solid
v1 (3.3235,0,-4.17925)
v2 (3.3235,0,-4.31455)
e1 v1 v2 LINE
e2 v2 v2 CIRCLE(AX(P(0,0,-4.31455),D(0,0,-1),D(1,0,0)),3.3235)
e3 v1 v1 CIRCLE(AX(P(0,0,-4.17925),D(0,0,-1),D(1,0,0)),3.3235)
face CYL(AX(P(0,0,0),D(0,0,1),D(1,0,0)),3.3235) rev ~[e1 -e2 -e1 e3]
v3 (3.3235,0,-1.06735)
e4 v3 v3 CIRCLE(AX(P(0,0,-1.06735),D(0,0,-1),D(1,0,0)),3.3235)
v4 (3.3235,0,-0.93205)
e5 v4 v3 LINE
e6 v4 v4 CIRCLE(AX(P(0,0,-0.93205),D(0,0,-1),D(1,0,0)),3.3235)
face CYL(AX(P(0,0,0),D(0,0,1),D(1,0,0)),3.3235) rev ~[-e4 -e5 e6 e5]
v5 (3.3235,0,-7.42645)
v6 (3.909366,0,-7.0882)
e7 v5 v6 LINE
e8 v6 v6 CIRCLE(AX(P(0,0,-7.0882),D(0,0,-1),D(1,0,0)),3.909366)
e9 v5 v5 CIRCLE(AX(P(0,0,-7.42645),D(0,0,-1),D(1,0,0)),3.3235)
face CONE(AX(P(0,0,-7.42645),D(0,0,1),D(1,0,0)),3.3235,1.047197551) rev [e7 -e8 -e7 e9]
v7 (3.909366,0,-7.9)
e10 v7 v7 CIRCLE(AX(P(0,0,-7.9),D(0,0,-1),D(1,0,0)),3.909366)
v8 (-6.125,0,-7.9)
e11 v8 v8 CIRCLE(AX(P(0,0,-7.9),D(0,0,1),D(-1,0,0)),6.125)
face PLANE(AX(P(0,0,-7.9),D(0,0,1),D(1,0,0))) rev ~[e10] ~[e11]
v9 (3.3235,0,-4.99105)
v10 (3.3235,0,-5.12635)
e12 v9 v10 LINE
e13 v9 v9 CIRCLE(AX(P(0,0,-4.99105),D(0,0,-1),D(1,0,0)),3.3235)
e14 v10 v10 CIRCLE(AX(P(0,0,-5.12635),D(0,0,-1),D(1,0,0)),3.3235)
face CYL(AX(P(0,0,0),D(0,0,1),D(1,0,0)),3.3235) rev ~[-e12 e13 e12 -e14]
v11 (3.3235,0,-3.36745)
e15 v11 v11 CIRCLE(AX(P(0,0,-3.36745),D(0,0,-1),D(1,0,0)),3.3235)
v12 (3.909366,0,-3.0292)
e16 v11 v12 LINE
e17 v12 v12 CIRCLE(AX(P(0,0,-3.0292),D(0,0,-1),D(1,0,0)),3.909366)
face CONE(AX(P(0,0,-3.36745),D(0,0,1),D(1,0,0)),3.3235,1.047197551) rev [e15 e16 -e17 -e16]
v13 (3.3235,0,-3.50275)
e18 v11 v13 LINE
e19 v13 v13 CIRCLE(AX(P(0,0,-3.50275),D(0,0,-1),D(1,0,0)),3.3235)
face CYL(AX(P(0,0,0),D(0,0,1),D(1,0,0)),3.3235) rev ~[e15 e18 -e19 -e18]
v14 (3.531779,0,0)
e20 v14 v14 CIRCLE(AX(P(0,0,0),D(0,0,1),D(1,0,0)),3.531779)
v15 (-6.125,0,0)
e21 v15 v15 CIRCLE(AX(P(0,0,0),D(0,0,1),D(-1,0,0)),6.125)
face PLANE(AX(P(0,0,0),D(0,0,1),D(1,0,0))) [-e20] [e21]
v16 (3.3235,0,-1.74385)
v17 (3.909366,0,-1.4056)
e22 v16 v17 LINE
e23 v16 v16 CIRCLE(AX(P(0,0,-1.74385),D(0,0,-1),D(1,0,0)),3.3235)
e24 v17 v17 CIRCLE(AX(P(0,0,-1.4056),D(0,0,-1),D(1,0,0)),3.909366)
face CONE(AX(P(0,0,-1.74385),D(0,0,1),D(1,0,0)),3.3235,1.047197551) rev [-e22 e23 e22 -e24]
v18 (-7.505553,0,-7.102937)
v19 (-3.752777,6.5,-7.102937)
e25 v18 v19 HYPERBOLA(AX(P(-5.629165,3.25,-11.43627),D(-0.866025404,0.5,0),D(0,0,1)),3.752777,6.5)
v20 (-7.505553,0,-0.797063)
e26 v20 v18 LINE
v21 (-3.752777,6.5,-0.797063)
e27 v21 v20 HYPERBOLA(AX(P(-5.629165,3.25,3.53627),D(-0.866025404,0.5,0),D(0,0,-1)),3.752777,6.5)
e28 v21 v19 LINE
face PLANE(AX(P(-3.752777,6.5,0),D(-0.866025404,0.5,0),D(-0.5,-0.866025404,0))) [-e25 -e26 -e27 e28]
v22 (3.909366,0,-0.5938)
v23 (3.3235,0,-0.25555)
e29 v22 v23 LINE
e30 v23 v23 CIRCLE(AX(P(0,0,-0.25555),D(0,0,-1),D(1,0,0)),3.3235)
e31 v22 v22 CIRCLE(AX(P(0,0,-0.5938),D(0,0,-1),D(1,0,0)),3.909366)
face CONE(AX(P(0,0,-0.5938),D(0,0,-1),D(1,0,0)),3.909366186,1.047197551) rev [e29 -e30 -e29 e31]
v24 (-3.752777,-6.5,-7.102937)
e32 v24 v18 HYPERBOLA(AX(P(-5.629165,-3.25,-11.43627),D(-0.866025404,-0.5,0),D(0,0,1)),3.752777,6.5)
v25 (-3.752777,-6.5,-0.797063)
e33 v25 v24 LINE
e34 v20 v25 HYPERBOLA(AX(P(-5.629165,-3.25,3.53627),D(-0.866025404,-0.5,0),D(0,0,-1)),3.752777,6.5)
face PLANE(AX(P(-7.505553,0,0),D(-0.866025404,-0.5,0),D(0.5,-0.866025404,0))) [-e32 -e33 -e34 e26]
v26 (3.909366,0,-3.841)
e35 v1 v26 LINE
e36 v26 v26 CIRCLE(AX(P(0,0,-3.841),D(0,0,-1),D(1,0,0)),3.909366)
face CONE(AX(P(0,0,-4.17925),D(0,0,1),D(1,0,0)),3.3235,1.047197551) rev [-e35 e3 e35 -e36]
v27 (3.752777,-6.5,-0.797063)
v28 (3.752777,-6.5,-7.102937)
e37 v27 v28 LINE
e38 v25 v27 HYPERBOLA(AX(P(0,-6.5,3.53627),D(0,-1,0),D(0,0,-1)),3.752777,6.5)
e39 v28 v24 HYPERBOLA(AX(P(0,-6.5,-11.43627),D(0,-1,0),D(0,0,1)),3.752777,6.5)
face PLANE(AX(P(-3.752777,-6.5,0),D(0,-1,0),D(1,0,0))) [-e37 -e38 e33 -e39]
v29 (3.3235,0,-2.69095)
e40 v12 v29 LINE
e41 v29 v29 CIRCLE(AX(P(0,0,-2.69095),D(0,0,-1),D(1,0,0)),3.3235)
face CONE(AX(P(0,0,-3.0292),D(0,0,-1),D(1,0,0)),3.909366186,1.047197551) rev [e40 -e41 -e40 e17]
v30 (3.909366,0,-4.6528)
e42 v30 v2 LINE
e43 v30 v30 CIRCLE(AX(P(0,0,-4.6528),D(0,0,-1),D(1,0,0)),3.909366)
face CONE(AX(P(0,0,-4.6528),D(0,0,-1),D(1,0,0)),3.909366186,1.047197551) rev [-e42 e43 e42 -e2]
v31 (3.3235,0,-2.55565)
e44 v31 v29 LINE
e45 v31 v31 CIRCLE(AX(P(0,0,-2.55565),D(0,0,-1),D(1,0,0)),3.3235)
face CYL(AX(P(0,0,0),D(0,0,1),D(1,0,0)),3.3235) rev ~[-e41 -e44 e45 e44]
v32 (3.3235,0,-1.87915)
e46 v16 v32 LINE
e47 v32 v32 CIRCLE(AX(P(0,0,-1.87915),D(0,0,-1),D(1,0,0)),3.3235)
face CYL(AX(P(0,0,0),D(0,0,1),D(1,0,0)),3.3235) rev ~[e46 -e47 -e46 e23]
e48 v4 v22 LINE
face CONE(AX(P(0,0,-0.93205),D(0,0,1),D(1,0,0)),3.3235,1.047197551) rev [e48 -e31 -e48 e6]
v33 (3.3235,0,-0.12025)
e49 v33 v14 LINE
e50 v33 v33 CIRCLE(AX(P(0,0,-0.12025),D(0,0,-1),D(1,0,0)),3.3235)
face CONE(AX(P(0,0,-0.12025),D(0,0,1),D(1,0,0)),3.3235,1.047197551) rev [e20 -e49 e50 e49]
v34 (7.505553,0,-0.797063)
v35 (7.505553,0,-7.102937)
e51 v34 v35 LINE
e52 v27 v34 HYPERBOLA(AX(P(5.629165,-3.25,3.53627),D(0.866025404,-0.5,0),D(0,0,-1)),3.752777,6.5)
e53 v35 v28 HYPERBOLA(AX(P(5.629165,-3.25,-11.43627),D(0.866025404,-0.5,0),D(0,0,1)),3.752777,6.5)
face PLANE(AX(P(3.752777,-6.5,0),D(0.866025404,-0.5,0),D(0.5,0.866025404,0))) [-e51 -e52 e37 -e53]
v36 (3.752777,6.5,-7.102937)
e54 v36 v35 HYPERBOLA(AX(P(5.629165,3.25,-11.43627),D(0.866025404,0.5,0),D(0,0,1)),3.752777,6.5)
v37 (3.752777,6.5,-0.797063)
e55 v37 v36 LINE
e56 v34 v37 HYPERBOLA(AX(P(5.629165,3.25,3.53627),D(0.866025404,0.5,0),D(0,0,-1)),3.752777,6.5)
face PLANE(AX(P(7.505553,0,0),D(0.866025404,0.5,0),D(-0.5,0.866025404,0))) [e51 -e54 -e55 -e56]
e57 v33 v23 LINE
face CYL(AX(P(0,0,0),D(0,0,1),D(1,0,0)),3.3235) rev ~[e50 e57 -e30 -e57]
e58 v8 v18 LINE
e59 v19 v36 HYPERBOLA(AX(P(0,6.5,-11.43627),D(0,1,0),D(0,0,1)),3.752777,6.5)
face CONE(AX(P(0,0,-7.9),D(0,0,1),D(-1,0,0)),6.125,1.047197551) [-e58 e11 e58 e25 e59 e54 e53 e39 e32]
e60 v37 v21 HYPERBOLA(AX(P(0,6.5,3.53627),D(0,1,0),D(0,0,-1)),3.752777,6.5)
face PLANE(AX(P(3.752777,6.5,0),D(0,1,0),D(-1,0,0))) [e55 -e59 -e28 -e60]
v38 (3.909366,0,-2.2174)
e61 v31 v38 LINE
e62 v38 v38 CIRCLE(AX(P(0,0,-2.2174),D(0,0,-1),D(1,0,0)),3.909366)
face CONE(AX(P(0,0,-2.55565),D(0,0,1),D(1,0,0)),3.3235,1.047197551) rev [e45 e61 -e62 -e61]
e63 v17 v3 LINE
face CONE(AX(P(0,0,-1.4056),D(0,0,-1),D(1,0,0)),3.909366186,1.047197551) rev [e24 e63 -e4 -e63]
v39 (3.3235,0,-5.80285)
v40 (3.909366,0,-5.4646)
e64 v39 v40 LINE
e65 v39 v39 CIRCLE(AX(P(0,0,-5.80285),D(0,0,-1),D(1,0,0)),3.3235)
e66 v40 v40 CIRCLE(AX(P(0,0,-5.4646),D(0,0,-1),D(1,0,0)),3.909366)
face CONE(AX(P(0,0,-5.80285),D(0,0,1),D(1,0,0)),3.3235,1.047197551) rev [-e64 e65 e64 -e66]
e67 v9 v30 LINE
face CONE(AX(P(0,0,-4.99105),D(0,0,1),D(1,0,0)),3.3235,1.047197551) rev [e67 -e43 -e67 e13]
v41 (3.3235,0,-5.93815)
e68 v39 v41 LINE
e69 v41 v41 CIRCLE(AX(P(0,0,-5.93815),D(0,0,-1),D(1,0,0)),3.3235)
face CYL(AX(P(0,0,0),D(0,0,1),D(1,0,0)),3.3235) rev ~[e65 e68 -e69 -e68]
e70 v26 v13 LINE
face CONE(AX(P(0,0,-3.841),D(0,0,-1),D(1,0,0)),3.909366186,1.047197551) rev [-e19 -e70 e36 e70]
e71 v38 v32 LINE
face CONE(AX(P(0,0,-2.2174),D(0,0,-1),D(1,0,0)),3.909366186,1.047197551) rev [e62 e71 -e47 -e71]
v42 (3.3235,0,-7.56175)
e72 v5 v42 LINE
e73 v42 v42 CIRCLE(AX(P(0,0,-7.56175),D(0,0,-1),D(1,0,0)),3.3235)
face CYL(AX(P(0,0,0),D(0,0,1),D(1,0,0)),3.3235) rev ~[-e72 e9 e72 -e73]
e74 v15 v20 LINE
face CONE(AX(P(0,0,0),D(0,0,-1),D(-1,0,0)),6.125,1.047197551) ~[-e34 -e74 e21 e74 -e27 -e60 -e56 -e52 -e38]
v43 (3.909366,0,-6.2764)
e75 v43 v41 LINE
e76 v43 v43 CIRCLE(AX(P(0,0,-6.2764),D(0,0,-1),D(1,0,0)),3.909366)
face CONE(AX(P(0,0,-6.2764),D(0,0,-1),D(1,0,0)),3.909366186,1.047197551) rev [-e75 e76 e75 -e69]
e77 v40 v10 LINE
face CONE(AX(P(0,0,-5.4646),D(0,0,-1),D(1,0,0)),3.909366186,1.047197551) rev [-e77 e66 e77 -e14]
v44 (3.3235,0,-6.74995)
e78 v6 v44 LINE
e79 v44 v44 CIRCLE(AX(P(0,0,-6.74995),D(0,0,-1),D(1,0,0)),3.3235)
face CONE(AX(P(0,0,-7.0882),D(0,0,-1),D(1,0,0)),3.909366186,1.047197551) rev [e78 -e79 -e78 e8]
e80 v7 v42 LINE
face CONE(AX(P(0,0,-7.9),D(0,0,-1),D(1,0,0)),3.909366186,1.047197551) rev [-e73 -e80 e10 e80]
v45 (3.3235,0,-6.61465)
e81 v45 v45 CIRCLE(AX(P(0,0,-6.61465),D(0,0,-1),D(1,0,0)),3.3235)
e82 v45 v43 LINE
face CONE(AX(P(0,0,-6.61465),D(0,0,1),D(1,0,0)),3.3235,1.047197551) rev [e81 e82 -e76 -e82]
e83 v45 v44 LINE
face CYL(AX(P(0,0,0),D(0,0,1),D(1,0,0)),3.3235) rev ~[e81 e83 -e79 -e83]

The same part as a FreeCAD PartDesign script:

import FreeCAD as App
import Part
import Sketcher
from FreeCAD import Vector
Q = App.Units.Quantity


def add_polygon(sketch, points):
    """Adds a closed chain of lines whose ends are joined by coincident constraints."""
    first, n = sketch.GeometryCount, len(points)
    for a, b in zip(points, points[1:] + points[:1]):
        sketch.addGeometry(Part.LineSegment(App.Vector(*a, 0), App.Vector(*b, 0)), False)
    for i in range(n):
        sketch.addConstraint(Sketcher.Constraint("Coincident", first + i, 2, first + (i + 1) % n, 1))

doc = App.newDocument("Part")
params = doc.addObject("Spreadsheet::Sheet", "Params")
for row, (alias, value) in enumerate([
    ("pad1_length", "7.9 mm"),
    ("groove_angle", "360 deg"),
    ("groove2_angle", "360 deg"),
    ("linearpattern_pitch", "0.8118 mm"),
], start=1):
    params.set(f"A{row}", alias)
    params.set(f"B{row}", "=" + value)
    params.setAlias(f"B{row}", alias)

body = doc.addObject("PartDesign::Body", "Body")

# Sketch on XY plane
sketch1 = body.newObject("Sketcher::SketchObject", "Sketch")
sketch1.AttachmentSupport = (doc.getObject("XY_Plane"), [""])
sketch1.MapMode = "FlatFace"
add_polygon(sketch1, [(3.8, -6.5), (7.5, 0), (3.8, 6.5), (-3.8, 6.5), (-7.5, 0), (-3.8, -6.5)])  # lines 0-5
sketch1.addGeometry(Part.Circle(Vector(0, 0, 0), Vector(0, 0, 1), 3.3), False)  # 6
sketch1.addConstraint(Sketcher.Constraint("Horizontal", 2))
sketch1.addConstraint(Sketcher.Constraint("Horizontal", 5))
sketch1.addConstraint(Sketcher.Constraint("Coincident", 6, 3, -1, 1))
sketch1.addConstraint(Sketcher.Constraint("Symmetric", 0, 2, 3, 2, -1, 1))
sketch1.addConstraint(Sketcher.Constraint("Symmetric", 1, 2, 4, 2, -1, 1))
sketch1.addConstraint(Sketcher.Constraint("PointOnObject", 0, 2, -1))
sketch1.addConstraint(Sketcher.Constraint("Parallel", 0, 3))
sketch1.addConstraint(Sketcher.Constraint("Vertical", 2, 2, 4, 2))
sketch1.addConstraint(Sketcher.Constraint("Angle", 0, Q("60 deg")))
sketch1.addConstraint(Sketcher.Constraint("Diameter", 6, 6.647))
sketch1.addConstraint(Sketcher.Constraint("DistanceY", 4, 2, 2, 2, 13.0))
sketch1.addConstraint(Sketcher.Constraint("DistanceX", 2, 2, 2, 1, 7.505554))
pad1 = body.newObject("PartDesign::Pad", "Pad")
pad1.Profile = sketch1
pad1.setExpression("Length", "Params.pad1_length")
pad1.Reversed = True

# Sketch on XZ plane
sketch2 = body.newObject("Sketcher::SketchObject", "Sketch001")
sketch2.AttachmentSupport = (doc.getObject("XZ_Plane"), [""])
sketch2.MapMode = "FlatFace"
add_polygon(sketch2, [(-6.1, -7.9), (-7.5, -7.9), (-7.5, -7.1)])  # lines 0-2
add_polygon(sketch2, [(-7.5, -0.8), (-7.5, 0), (-6.1, 0)])  # lines 3-5
sketch2.addConstraint(Sketcher.Constraint("Horizontal", 0))
sketch2.addConstraint(Sketcher.Constraint("Vertical", 1))
sketch2.addConstraint(Sketcher.Constraint("Vertical", 3))
sketch2.addConstraint(Sketcher.Constraint("Horizontal", 4))
sketch2.addConstraint(Sketcher.Constraint("PointOnObject", 3, 2, -1))
sketch2.addConstraint(Sketcher.Constraint("Vertical", 1, 2, 3, 2))
sketch2.addConstraint(Sketcher.Constraint("Vertical", 2, 2, 4, 2))
sketch2.addConstraint(Sketcher.Constraint("Equal", 1, 3))
sketch2.addConstraint(Sketcher.Constraint("Angle", 2, Q("-30 deg")))
sketch2.addConstraint(Sketcher.Constraint("DistanceY", 0, 2, -1, 1, 7.9))
sketch2.addConstraint(Sketcher.Constraint("DistanceX", 2, 2, -1, 1, 6.125))
sketch2.addConstraint(Sketcher.Constraint("DistanceX", 0, 2, 0, 1, 1.380553))
groove = body.newObject("PartDesign::Groove", "Groove")
groove.Profile = sketch2
groove.ReferenceAxis = (sketch2, ["V_Axis"])
groove.setExpression("Angle", "Params.groove_angle")

# Sketch on XZ plane
sketch3 = body.newObject("Sketcher::SketchObject", "Sketch002")
sketch3.AttachmentSupport = (doc.getObject("XZ_Plane"), [""])
sketch3.MapMode = "FlatFace"
add_polygon(sketch3, [(3.3, -7.6), (3.9, -7.9), (3.3, -8.2), (2.6, -8.2), (2.6, -7.6)])  # lines 0-4
sketch3.addConstraint(Sketcher.Constraint("Horizontal", 2))
sketch3.addConstraint(Sketcher.Constraint("Vertical", 3))
sketch3.addConstraint(Sketcher.Constraint("Horizontal", 4))
sketch3.addConstraint(Sketcher.Constraint("Vertical", 1, 2, 4, 2))
sketch3.addConstraint(Sketcher.Constraint("Equal", 4, 3))
sketch3.addConstraint(Sketcher.Constraint("Equal", 0, 1))
sketch3.addConstraint(Sketcher.Constraint("Angle", 0, Q("-30 deg")))
sketch3.addConstraint(Sketcher.Constraint("DistanceY", 0, 2, -1, 1, 7.9))
sketch3.addConstraint(Sketcher.Constraint("DistanceX", 2, 2, 2, 1, 0.6765))
sketch3.addConstraint(Sketcher.Constraint("DistanceX", -1, 1, 2, 2, 2.647))
groove2 = body.newObject("PartDesign::Groove", "Groove001")
groove2.Profile = sketch3
groove2.ReferenceAxis = (sketch3, ["V_Axis"])
groove2.setExpression("Angle", "Params.groove2_angle")
doc.recompute()

linearpattern = body.newObject("PartDesign::LinearPattern", "LinearPattern")
linearpattern.Originals = [groove2]
linearpattern.Direction = (doc.getObject("Z_Axis"), [""])
linearpattern.Mode = "offset"
linearpattern.setExpression("Offset", "Params.linearpattern_pitch")
linearpattern.Occurrences = 11
body.Tip = linearpattern

doc.recompute()
